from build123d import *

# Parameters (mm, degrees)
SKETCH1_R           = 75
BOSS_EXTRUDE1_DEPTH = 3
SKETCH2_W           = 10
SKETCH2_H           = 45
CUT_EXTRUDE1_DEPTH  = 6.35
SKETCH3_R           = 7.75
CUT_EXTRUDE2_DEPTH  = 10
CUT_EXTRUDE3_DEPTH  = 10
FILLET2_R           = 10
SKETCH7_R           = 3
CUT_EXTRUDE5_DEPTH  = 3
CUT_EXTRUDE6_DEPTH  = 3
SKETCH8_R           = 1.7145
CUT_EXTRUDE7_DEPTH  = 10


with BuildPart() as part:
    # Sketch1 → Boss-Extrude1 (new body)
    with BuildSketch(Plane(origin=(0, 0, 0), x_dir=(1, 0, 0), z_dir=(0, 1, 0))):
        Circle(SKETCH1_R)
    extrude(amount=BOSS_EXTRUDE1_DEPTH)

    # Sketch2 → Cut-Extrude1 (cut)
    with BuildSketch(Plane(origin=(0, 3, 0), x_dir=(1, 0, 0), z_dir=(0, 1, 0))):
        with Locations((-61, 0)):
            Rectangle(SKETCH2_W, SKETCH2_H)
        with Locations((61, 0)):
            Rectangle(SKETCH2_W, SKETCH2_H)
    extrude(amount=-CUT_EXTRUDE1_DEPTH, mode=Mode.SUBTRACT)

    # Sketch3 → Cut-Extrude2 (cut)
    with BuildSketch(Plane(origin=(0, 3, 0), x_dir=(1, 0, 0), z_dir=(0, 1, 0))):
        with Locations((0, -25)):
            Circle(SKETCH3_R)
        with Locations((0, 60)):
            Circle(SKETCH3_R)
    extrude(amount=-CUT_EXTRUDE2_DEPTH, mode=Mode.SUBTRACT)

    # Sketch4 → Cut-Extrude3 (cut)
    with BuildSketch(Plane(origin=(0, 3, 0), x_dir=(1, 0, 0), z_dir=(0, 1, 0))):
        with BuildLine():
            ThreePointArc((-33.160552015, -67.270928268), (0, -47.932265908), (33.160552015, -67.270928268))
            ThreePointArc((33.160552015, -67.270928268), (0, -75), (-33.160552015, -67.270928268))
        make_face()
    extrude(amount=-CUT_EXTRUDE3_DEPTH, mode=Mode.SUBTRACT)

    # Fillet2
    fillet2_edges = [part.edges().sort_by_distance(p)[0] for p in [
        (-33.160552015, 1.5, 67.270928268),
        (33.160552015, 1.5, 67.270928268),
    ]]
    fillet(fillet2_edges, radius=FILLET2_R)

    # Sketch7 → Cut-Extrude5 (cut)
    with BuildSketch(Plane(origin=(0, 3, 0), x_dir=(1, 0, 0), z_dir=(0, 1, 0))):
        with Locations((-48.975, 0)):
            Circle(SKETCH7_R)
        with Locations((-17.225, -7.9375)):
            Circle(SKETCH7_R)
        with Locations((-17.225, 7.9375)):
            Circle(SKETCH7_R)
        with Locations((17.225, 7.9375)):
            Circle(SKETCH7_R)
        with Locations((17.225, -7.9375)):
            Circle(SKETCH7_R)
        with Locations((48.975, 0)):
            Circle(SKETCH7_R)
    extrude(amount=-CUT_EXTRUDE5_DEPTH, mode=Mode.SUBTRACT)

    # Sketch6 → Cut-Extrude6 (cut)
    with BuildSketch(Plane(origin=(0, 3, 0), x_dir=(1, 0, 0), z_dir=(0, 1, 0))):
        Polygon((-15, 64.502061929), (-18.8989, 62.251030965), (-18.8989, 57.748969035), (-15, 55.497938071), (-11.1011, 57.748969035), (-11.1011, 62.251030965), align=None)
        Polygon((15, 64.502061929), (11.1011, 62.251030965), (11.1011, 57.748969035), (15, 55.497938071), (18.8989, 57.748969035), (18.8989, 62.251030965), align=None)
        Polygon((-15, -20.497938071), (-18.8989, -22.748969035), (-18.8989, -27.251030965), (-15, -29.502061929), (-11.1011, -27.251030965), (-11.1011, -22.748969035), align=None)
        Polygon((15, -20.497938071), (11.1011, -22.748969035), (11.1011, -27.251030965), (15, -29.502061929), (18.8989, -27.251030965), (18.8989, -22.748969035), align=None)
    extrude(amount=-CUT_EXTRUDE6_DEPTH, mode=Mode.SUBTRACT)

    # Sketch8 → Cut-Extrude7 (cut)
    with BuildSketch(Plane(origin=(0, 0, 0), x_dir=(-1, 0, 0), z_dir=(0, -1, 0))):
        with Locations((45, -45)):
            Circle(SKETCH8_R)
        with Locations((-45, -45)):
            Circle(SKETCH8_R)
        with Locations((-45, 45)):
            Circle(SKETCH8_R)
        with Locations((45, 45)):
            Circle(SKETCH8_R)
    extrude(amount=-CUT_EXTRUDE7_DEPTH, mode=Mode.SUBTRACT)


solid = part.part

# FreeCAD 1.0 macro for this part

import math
import FreeCAD as App
import Part
import Sketcher

V = App.Vector
Q = App.Units.Quantity


def edges_at(feature, points):
    """Names of the edges that pass closest to the given points."""
    edges = feature.Shape.Edges
    near = lambda p: min(range(len(edges)), key=lambda i: edges[i].distToShape(Part.Vertex(*p))[0])
    return sorted({f"Edge{near(p) + 1}" for p in points})

doc = App.newDocument("Part")
body = doc.addObject("PartDesign::Body", "Body")

# Sketch on XZ plane
sketch1 = body.newObject("Sketcher::SketchObject", "Sketch")
sketch1.AttachmentSupport = (doc.getObject("XZ_Plane"), [""])
sketch1.MapMode = "FlatFace"
sketch1.addGeometry(Part.Circle(V(0, 0, 0), V(0, 0, 1), 75), False)
sketch1.addConstraint(Sketcher.Constraint("Coincident", 0, 3, -1, 1))
sketch1.addConstraint(Sketcher.Constraint("Diameter", 0, Q("150 mm")))
pad1 = body.newObject("PartDesign::Pad", "Pad")
pad1.Profile = sketch1
pad1.Length = 3
pad1.Reversed = True

# Sketch on XZ plane
sketch2 = body.newObject("Sketcher::SketchObject", "Sketch001")
sketch2.AttachmentSupport = (doc.getObject("XZ_Plane"), [""])
sketch2.MapMode = "FlatFace"
sketch2.AttachmentOffset = App.Placement(V(0, 0, -3), App.Rotation())
sketch2.addGeometry(Part.LineSegment(V(-66, -22, 0), V(-66, 22, 0)), False)
sketch2.addGeometry(Part.LineSegment(V(-66, 22, 0), V(-56, 22, 0)), False)
sketch2.addGeometry(Part.LineSegment(V(-56, 22, 0), V(-56, -22, 0)), False)
sketch2.addGeometry(Part.LineSegment(V(-56, -22, 0), V(-66, -22, 0)), False)
sketch2.addGeometry(Part.LineSegment(V(56, -22, 0), V(56, 22, 0)), False)
sketch2.addGeometry(Part.LineSegment(V(56, 22, 0), V(66, 22, 0)), False)
sketch2.addGeometry(Part.LineSegment(V(66, 22, 0), V(66, -22, 0)), False)
sketch2.addGeometry(Part.LineSegment(V(66, -22, 0), V(56, -22, 0)), False)
sketch2.addConstraint(Sketcher.Constraint("Coincident", 0, 2, 1, 1))
sketch2.addConstraint(Sketcher.Constraint("Coincident", 1, 2, 2, 1))
sketch2.addConstraint(Sketcher.Constraint("Coincident", 2, 2, 3, 1))
sketch2.addConstraint(Sketcher.Constraint("Coincident", 3, 2, 0, 1))
sketch2.addConstraint(Sketcher.Constraint("Coincident", 4, 2, 5, 1))
sketch2.addConstraint(Sketcher.Constraint("Coincident", 5, 2, 6, 1))
sketch2.addConstraint(Sketcher.Constraint("Coincident", 6, 2, 7, 1))
sketch2.addConstraint(Sketcher.Constraint("Coincident", 7, 2, 4, 1))
sketch2.addConstraint(Sketcher.Constraint("Vertical", 0))
sketch2.addConstraint(Sketcher.Constraint("Horizontal", 1))
sketch2.addConstraint(Sketcher.Constraint("Vertical", 2))
sketch2.addConstraint(Sketcher.Constraint("Horizontal", 3))
sketch2.addConstraint(Sketcher.Constraint("Vertical", 4))
sketch2.addConstraint(Sketcher.Constraint("Horizontal", 5))
sketch2.addConstraint(Sketcher.Constraint("Vertical", 6))
sketch2.addConstraint(Sketcher.Constraint("Horizontal", 7))
sketch2.addConstraint(Sketcher.Constraint("Symmetric", 2, 2, 4, 2, -1, 1))
sketch2.addConstraint(Sketcher.Constraint("Symmetric", 0, 2, 6, 2, -1, 1))
sketch2.addConstraint(Sketcher.Constraint("Horizontal", 1, 2, 4, 2))
sketch2.addConstraint(Sketcher.Constraint("DistanceX", 1, 1, 1, 2, Q("10 mm")))
sketch2.addConstraint(Sketcher.Constraint("DistanceY", 0, 1, 0, 2, Q("45 mm")))
sketch2.addConstraint(Sketcher.Constraint("DistanceX", 0, 2, -1, 1, Q("66 mm")))
pocket1 = body.newObject("PartDesign::Pocket", "Pocket")
pocket1.Profile = sketch2
pocket1.Length = 6.35
pocket1.Reversed = True

# Sketch on XZ plane
sketch3 = body.newObject("Sketcher::SketchObject", "Sketch002")
sketch3.AttachmentSupport = (doc.getObject("XZ_Plane"), [""])
sketch3.MapMode = "FlatFace"
sketch3.AttachmentOffset = App.Placement(V(0, 0, -3), App.Rotation())
sketch3.addGeometry(Part.Circle(V(0, 25, 0), V(0, 0, 1), 8), False)
sketch3.addGeometry(Part.Circle(V(0, -60, 0), V(0, 0, 1), 8), False)
sketch3.addConstraint(Sketcher.Constraint("Equal", 0, 1))
sketch3.addConstraint(Sketcher.Constraint("PointOnObject", 0, 3, -2))
sketch3.addConstraint(Sketcher.Constraint("PointOnObject", 1, 3, -2))
sketch3.addConstraint(Sketcher.Constraint("Diameter", 0, Q("15.5 mm")))
sketch3.addConstraint(Sketcher.Constraint("DistanceY", -1, 1, 0, 3, Q("25 mm")))
sketch3.addConstraint(Sketcher.Constraint("DistanceY", 1, 3, -1, 1, Q("60 mm")))
pocket2 = body.newObject("PartDesign::Pocket", "Pocket001")
pocket2.Profile = sketch3
pocket2.Length = 10
pocket2.Reversed = True

# Sketch on XZ plane
sketch4 = body.newObject("Sketcher::SketchObject", "Sketch003")
sketch4.AttachmentSupport = (doc.getObject("XZ_Plane"), [""])
sketch4.MapMode = "FlatFace"
sketch4.AttachmentOffset = App.Placement(V(0, 0, -3), App.Rotation())
sketch4.addGeometry(Part.ArcOfCircle(Part.Circle(V(0, 86, 0), V(0, 0, 1), 38), math.radians(-150), math.radians(-30)), False)
sketch4.addGeometry(Part.ArcOfCircle(Part.Circle(V(0, 0, 0), V(0, 0, 1), 75), math.radians(64), math.radians(116)), False)
sketch4.addConstraint(Sketcher.Constraint("Coincident", 0, 1, 1, 2))
sketch4.addConstraint(Sketcher.Constraint("Coincident", 1, 1, 0, 2))
sketch4.addConstraint(Sketcher.Constraint("Coincident", 1, 3, -1, 1))
sketch4.addConstraint(Sketcher.Constraint("PointOnObject", 0, 3, -2))
sketch4.addConstraint(Sketcher.Constraint("Radius", 1, Q("75 mm")))
sketch4.addConstraint(Sketcher.Constraint("Radius", 0, Q("38.1 mm")))
sketch4.addConstraint(Sketcher.Constraint("DistanceY", -1, 1, 0, 1, Q("67.270928 mm")))
pocket3 = body.newObject("PartDesign::Pocket", "Pocket002")
pocket3.Profile = sketch4
pocket3.Length = 10
pocket3.Reversed = True
doc.recompute()

fillet = body.newObject("PartDesign::Fillet", "Fillet")
fillet.Base = (pocket3, edges_at(pocket3, [(-33.161, 1.5, 67.271), (33.161, 1.5, 67.271)]))
fillet.Radius = 10

# Sketch on XZ plane
sketch5 = body.newObject("Sketcher::SketchObject", "Sketch004")
sketch5.AttachmentSupport = (doc.getObject("XZ_Plane"), [""])
sketch5.MapMode = "FlatFace"
sketch5.AttachmentOffset = App.Placement(V(0, 0, -3), App.Rotation())
sketch5.addGeometry(Part.Circle(V(-49, 0, 0), V(0, 0, 1), 3), False)
sketch5.addGeometry(Part.Circle(V(-17.2, 7.9, 0), V(0, 0, 1), 3), False)
sketch5.addGeometry(Part.Circle(V(-17.2, -7.9, 0), V(0, 0, 1), 3), False)
sketch5.addGeometry(Part.Circle(V(17.2, -7.9, 0), V(0, 0, 1), 3), False)
sketch5.addGeometry(Part.Circle(V(17.2, 7.9, 0), V(0, 0, 1), 3), False)
sketch5.addGeometry(Part.Circle(V(49, 0, 0), V(0, 0, 1), 3), False)
sketch5.addConstraint(Sketcher.Constraint("Equal", 0, 1))
sketch5.addConstraint(Sketcher.Constraint("Equal", 1, 2))
sketch5.addConstraint(Sketcher.Constraint("Equal", 2, 3))
sketch5.addConstraint(Sketcher.Constraint("Equal", 3, 4))
sketch5.addConstraint(Sketcher.Constraint("Equal", 4, 5))
sketch5.addConstraint(Sketcher.Constraint("Symmetric", 1, 3, 3, 3, -1, 1))
sketch5.addConstraint(Sketcher.Constraint("Symmetric", 2, 3, 4, 3, -1, 1))
sketch5.addConstraint(Sketcher.Constraint("Symmetric", 0, 3, 5, 3, -1, 1))
sketch5.addConstraint(Sketcher.Constraint("Symmetric", 2, 3, 3, 3, -2))
sketch5.addConstraint(Sketcher.Constraint("PointOnObject", 0, 3, -1))
sketch5.addConstraint(Sketcher.Constraint("Diameter", 0, Q("6 mm")))
sketch5.addConstraint(Sketcher.Constraint("DistanceX", 0, 3, 3, 3, Q("66.2 mm")))
sketch5.addConstraint(Sketcher.Constraint("DistanceX", 0, 3, 1, 3, Q("31.75 mm")))
sketch5.addConstraint(Sketcher.Constraint("DistanceY", 2, 3, 1, 3, Q("15.875 mm")))
pocket4 = body.newObject("PartDesign::Pocket", "Pocket003")
pocket4.Profile = sketch5
pocket4.Length = 3
pocket4.Reversed = True

# Sketch on XZ plane
sketch6 = body.newObject("Sketcher::SketchObject", "Sketch005")
sketch6.AttachmentSupport = (doc.getObject("XZ_Plane"), [""])
sketch6.MapMode = "FlatFace"
sketch6.AttachmentOffset = App.Placement(V(0, 0, -3), App.Rotation())
sketch6.addGeometry(Part.LineSegment(V(-15, -64.5, 0), V(-18.9, -62.3, 0)), False)
sketch6.addGeometry(Part.LineSegment(V(-18.9, -62.3, 0), V(-18.9, -57.7, 0)), False)
sketch6.addGeometry(Part.LineSegment(V(-18.9, -57.7, 0), V(-15, -55.5, 0)), False)
sketch6.addGeometry(Part.LineSegment(V(-15, -55.5, 0), V(-11.1, -57.7, 0)), False)
sketch6.addGeometry(Part.LineSegment(V(-11.1, -57.7, 0), V(-11.1, -62.3, 0)), False)
sketch6.addGeometry(Part.LineSegment(V(-11.1, -62.3, 0), V(-15, -64.5, 0)), False)
sketch6.addGeometry(Part.LineSegment(V(15, -64.5, 0), V(11.1, -62.3, 0)), False)
sketch6.addGeometry(Part.LineSegment(V(11.1, -62.3, 0), V(11.1, -57.7, 0)), False)
sketch6.addGeometry(Part.LineSegment(V(11.1, -57.7, 0), V(15, -55.5, 0)), False)
sketch6.addGeometry(Part.LineSegment(V(15, -55.5, 0), V(18.9, -57.7, 0)), False)
sketch6.addGeometry(Part.LineSegment(V(18.9, -57.7, 0), V(18.9, -62.3, 0)), False)
sketch6.addGeometry(Part.LineSegment(V(18.9, -62.3, 0), V(15, -64.5, 0)), False)
sketch6.addGeometry(Part.LineSegment(V(-15, 20.5, 0), V(-18.9, 22.7, 0)), False)
sketch6.addGeometry(Part.LineSegment(V(-18.9, 22.7, 0), V(-18.9, 27.3, 0)), False)
sketch6.addGeometry(Part.LineSegment(V(-18.9, 27.3, 0), V(-15, 29.5, 0)), False)
sketch6.addGeometry(Part.LineSegment(V(-15, 29.5, 0), V(-11.1, 27.3, 0)), False)
sketch6.addGeometry(Part.LineSegment(V(-11.1, 27.3, 0), V(-11.1, 22.7, 0)), False)
sketch6.addGeometry(Part.LineSegment(V(-11.1, 22.7, 0), V(-15, 20.5, 0)), False)
sketch6.addGeometry(Part.LineSegment(V(15, 20.5, 0), V(11.1, 22.7, 0)), False)
sketch6.addGeometry(Part.LineSegment(V(11.1, 22.7, 0), V(11.1, 27.3, 0)), False)
sketch6.addGeometry(Part.LineSegment(V(11.1, 27.3, 0), V(15, 29.5, 0)), False)
sketch6.addGeometry(Part.LineSegment(V(15, 29.5, 0), V(18.9, 27.3, 0)), False)
sketch6.addGeometry(Part.LineSegment(V(18.9, 27.3, 0), V(18.9, 22.7, 0)), False)
sketch6.addGeometry(Part.LineSegment(V(18.9, 22.7, 0), V(15, 20.5, 0)), False)
sketch6.addConstraint(Sketcher.Constraint("Coincident", 0, 2, 1, 1))
sketch6.addConstraint(Sketcher.Constraint("Coincident", 1, 2, 2, 1))
sketch6.addConstraint(Sketcher.Constraint("Coincident", 2, 2, 3, 1))
sketch6.addConstraint(Sketcher.Constraint("Coincident", 3, 2, 4, 1))
sketch6.addConstraint(Sketcher.Constraint("Coincident", 4, 2, 5, 1))
sketch6.addConstraint(Sketcher.Constraint("Coincident", 5, 2, 0, 1))
sketch6.addConstraint(Sketcher.Constraint("Coincident", 6, 2, 7, 1))
sketch6.addConstraint(Sketcher.Constraint("Coincident", 7, 2, 8, 1))
sketch6.addConstraint(Sketcher.Constraint("Coincident", 8, 2, 9, 1))
sketch6.addConstraint(Sketcher.Constraint("Coincident", 9, 2, 10, 1))
sketch6.addConstraint(Sketcher.Constraint("Coincident", 10, 2, 11, 1))
sketch6.addConstraint(Sketcher.Constraint("Coincident", 11, 2, 6, 1))
sketch6.addConstraint(Sketcher.Constraint("Coincident", 12, 2, 13, 1))
sketch6.addConstraint(Sketcher.Constraint("Coincident", 13, 2, 14, 1))
sketch6.addConstraint(Sketcher.Constraint("Coincident", 14, 2, 15, 1))
sketch6.addConstraint(Sketcher.Constraint("Coincident", 15, 2, 16, 1))
sketch6.addConstraint(Sketcher.Constraint("Coincident", 16, 2, 17, 1))
sketch6.addConstraint(Sketcher.Constraint("Coincident", 17, 2, 12, 1))
sketch6.addConstraint(Sketcher.Constraint("Coincident", 18, 2, 19, 1))
sketch6.addConstraint(Sketcher.Constraint("Coincident", 19, 2, 20, 1))
sketch6.addConstraint(Sketcher.Constraint("Coincident", 20, 2, 21, 1))
sketch6.addConstraint(Sketcher.Constraint("Coincident", 21, 2, 22, 1))
sketch6.addConstraint(Sketcher.Constraint("Coincident", 22, 2, 23, 1))
sketch6.addConstraint(Sketcher.Constraint("Coincident", 23, 2, 18, 1))
sketch6.addConstraint(Sketcher.Constraint("Vertical", 1))
sketch6.addConstraint(Sketcher.Constraint("Vertical", 4))
sketch6.addConstraint(Sketcher.Constraint("Vertical", 7))
sketch6.addConstraint(Sketcher.Constraint("Vertical", 10))
sketch6.addConstraint(Sketcher.Constraint("Vertical", 13))
sketch6.addConstraint(Sketcher.Constraint("Vertical", 16))
sketch6.addConstraint(Sketcher.Constraint("Vertical", 19))
sketch6.addConstraint(Sketcher.Constraint("Vertical", 22))
sketch6.addConstraint(Sketcher.Constraint("Symmetric", 4, 2, 6, 2, -2))
sketch6.addConstraint(Sketcher.Constraint("Symmetric", 2, 2, 8, 2, -2))
sketch6.addConstraint(Sketcher.Constraint("Symmetric", 1, 2, 9, 2, -2))
sketch6.addConstraint(Sketcher.Constraint("Symmetric", 5, 2, 11, 2, -2))
sketch6.addConstraint(Sketcher.Constraint("Symmetric", 16, 2, 18, 2, -2))
sketch6.addConstraint(Sketcher.Constraint("Symmetric", 14, 2, 20, 2, -2))
sketch6.addConstraint(Sketcher.Constraint("Symmetric", 13, 2, 21, 2, -2))
sketch6.addConstraint(Sketcher.Constraint("Symmetric", 17, 2, 23, 2, -2))
sketch6.addConstraint(Sketcher.Constraint("Parallel", 0, 3))
sketch6.addConstraint(Sketcher.Constraint("Parallel", 2, 5))
sketch6.addConstraint(Sketcher.Constraint("Parallel", 3, 6))
sketch6.addConstraint(Sketcher.Constraint("Parallel", 5, 8))
sketch6.addConstraint(Sketcher.Constraint("Parallel", 8, 11))
sketch6.addConstraint(Sketcher.Constraint("Parallel", 9, 12))
sketch6.addConstraint(Sketcher.Constraint("Parallel", 11, 14))
sketch6.addConstraint(Sketcher.Constraint("Parallel", 12, 15))
sketch6.addConstraint(Sketcher.Constraint("Parallel", 14, 17))
sketch6.addConstraint(Sketcher.Constraint("Parallel", 17, 20))
sketch6.addConstraint(Sketcher.Constraint("Parallel", 20, 23))
sketch6.addConstraint(Sketcher.Constraint("Horizontal", 1, 2, 3, 2))
sketch6.addConstraint(Sketcher.Constraint("Horizontal", 0, 2, 4, 2))
sketch6.addConstraint(Sketcher.Constraint("Horizontal", 13, 2, 15, 2))
sketch6.addConstraint(Sketcher.Constraint("Horizontal", 12, 2, 16, 2))
sketch6.addConstraint(Sketcher.Constraint("Vertical", 1, 2, 12, 2))
sketch6.addConstraint(Sketcher.Constraint("Vertical", 5, 2, 14, 2))
sketch6.addConstraint(Sketcher.Constraint("Equal", 10, 13))
sketch6.addConstraint(Sketcher.Constraint("Angle", 0, Q("150 deg")))
sketch6.addConstraint(Sketcher.Constraint("DistanceX", 2, 2, -1, 1, Q("15 mm")))
sketch6.addConstraint(Sketcher.Constraint("DistanceY", 0, 2, 12, 2, Q("85 mm")))
sketch6.addConstraint(Sketcher.Constraint("DistanceY", 1, 1, 1, 2, Q("4.502062 mm")))
sketch6.addConstraint(Sketcher.Constraint("DistanceX", 0, 2, -1, 1, Q("18.8989 mm")))
sketch6.addConstraint(Sketcher.Constraint("DistanceY", 0, 2, -1, 1, Q("62.251031 mm")))
pocket5 = body.newObject("PartDesign::Pocket", "Pocket004")
pocket5.Profile = sketch6
pocket5.Length = 3
pocket5.Reversed = True

# Sketch on XZ plane
sketch7 = body.newObject("Sketcher::SketchObject", "Sketch006")
sketch7.AttachmentSupport = (doc.getObject("XZ_Plane"), [""])
sketch7.MapMode = "FlatFace"
sketch7.addGeometry(Part.Circle(V(-45, 45, 0), V(0, 0, 1), 1.7), False)
sketch7.addGeometry(Part.Circle(V(45, 45, 0), V(0, 0, 1), 1.7), False)
sketch7.addGeometry(Part.Circle(V(45, -45, 0), V(0, 0, 1), 1.7), False)
sketch7.addGeometry(Part.Circle(V(-45, -45, 0), V(0, 0, 1), 1.7), False)
sketch7.addConstraint(Sketcher.Constraint("Equal", 0, 1))
sketch7.addConstraint(Sketcher.Constraint("Equal", 1, 2))
sketch7.addConstraint(Sketcher.Constraint("Equal", 2, 3))
sketch7.addConstraint(Sketcher.Constraint("Symmetric", 0, 3, 2, 3, -1, 1))
sketch7.addConstraint(Sketcher.Constraint("Symmetric", 1, 3, 3, 3, -1, 1))
sketch7.addConstraint(Sketcher.Constraint("Symmetric", 0, 3, 1, 3, -2))
sketch7.addConstraint(Sketcher.Constraint("Diameter", 0, Q("3.429 mm")))
sketch7.addConstraint(Sketcher.Constraint("DistanceX", 0, 3, -1, 1, Q("45 mm")))
sketch7.addConstraint(Sketcher.Constraint("DistanceY", -1, 1, 0, 3, Q("45 mm")))
pocket6 = body.newObject("PartDesign::Pocket", "Pocket005")
pocket6.Profile = sketch7
pocket6.Length = 10

doc.recompute()
